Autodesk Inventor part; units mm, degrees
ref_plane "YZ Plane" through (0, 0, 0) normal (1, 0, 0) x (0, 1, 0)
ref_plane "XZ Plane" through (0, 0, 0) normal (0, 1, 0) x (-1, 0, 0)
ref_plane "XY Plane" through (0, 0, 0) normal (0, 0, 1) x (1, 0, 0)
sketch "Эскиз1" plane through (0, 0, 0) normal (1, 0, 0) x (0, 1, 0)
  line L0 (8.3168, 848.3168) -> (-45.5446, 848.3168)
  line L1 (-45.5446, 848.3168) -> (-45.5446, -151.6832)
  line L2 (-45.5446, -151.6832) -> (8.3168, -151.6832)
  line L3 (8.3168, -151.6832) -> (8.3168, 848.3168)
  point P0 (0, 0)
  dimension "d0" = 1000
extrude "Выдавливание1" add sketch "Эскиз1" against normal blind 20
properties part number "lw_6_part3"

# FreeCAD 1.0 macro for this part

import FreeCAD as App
import Part
import Sketcher

V = App.Vector
Q = App.Units.Quantity


def add_polygon(sketch, points):
    """Adds a closed chain of lines whose ends are joined by coincident constraints."""
    first, n = sketch.GeometryCount, len(points)
    for a, b in zip(points, points[1:] + points[:1]):
        sketch.addGeometry(Part.LineSegment(App.Vector(*a, 0), App.Vector(*b, 0)), False)
    for i in range(n):
        sketch.addConstraint(Sketcher.Constraint("Coincident", first + i, 2, first + (i + 1) % n, 1))

doc = App.newDocument("Part")
body = doc.addObject("PartDesign::Body", "Body")

sketch1 = body.newObject("Sketcher::SketchObject", "Sketch")
sketch1.AttachmentSupport = (doc.getObject("YZ_Plane"), [""])
sketch1.MapMode = "FlatFace"
add_polygon(sketch1, [(8.3168, -151.6832), (8.3168, 848.3168), (-45.5446, 848.3168), (-45.5446, -151.6832)])
sketch1.addConstraint(Sketcher.Constraint("Vertical", 0))
sketch1.addConstraint(Sketcher.Constraint("Horizontal", 1))
sketch1.addConstraint(Sketcher.Constraint("Vertical", 2))
sketch1.addConstraint(Sketcher.Constraint("Horizontal", 3))
sketch1.addConstraint(Sketcher.Constraint("DistanceY", 0, 1, 0, 2, Q("1000 mm")))
sketch1.addConstraint(Sketcher.Constraint("DistanceX", 1, 2, 1, 1, Q("53.8614 mm")))
sketch1.addConstraint(Sketcher.Constraint("DistanceX", -1, 1, 0, 2, Q("8.3168 mm")))
sketch1.addConstraint(Sketcher.Constraint("DistanceY", -1, 1, 0, 2, Q("848.3168 mm")))
pad1 = body.newObject("PartDesign::Pad", "Pad")
pad1.Profile = sketch1
pad1.Length = 20
pad1.Reversed = True

doc.recompute()
